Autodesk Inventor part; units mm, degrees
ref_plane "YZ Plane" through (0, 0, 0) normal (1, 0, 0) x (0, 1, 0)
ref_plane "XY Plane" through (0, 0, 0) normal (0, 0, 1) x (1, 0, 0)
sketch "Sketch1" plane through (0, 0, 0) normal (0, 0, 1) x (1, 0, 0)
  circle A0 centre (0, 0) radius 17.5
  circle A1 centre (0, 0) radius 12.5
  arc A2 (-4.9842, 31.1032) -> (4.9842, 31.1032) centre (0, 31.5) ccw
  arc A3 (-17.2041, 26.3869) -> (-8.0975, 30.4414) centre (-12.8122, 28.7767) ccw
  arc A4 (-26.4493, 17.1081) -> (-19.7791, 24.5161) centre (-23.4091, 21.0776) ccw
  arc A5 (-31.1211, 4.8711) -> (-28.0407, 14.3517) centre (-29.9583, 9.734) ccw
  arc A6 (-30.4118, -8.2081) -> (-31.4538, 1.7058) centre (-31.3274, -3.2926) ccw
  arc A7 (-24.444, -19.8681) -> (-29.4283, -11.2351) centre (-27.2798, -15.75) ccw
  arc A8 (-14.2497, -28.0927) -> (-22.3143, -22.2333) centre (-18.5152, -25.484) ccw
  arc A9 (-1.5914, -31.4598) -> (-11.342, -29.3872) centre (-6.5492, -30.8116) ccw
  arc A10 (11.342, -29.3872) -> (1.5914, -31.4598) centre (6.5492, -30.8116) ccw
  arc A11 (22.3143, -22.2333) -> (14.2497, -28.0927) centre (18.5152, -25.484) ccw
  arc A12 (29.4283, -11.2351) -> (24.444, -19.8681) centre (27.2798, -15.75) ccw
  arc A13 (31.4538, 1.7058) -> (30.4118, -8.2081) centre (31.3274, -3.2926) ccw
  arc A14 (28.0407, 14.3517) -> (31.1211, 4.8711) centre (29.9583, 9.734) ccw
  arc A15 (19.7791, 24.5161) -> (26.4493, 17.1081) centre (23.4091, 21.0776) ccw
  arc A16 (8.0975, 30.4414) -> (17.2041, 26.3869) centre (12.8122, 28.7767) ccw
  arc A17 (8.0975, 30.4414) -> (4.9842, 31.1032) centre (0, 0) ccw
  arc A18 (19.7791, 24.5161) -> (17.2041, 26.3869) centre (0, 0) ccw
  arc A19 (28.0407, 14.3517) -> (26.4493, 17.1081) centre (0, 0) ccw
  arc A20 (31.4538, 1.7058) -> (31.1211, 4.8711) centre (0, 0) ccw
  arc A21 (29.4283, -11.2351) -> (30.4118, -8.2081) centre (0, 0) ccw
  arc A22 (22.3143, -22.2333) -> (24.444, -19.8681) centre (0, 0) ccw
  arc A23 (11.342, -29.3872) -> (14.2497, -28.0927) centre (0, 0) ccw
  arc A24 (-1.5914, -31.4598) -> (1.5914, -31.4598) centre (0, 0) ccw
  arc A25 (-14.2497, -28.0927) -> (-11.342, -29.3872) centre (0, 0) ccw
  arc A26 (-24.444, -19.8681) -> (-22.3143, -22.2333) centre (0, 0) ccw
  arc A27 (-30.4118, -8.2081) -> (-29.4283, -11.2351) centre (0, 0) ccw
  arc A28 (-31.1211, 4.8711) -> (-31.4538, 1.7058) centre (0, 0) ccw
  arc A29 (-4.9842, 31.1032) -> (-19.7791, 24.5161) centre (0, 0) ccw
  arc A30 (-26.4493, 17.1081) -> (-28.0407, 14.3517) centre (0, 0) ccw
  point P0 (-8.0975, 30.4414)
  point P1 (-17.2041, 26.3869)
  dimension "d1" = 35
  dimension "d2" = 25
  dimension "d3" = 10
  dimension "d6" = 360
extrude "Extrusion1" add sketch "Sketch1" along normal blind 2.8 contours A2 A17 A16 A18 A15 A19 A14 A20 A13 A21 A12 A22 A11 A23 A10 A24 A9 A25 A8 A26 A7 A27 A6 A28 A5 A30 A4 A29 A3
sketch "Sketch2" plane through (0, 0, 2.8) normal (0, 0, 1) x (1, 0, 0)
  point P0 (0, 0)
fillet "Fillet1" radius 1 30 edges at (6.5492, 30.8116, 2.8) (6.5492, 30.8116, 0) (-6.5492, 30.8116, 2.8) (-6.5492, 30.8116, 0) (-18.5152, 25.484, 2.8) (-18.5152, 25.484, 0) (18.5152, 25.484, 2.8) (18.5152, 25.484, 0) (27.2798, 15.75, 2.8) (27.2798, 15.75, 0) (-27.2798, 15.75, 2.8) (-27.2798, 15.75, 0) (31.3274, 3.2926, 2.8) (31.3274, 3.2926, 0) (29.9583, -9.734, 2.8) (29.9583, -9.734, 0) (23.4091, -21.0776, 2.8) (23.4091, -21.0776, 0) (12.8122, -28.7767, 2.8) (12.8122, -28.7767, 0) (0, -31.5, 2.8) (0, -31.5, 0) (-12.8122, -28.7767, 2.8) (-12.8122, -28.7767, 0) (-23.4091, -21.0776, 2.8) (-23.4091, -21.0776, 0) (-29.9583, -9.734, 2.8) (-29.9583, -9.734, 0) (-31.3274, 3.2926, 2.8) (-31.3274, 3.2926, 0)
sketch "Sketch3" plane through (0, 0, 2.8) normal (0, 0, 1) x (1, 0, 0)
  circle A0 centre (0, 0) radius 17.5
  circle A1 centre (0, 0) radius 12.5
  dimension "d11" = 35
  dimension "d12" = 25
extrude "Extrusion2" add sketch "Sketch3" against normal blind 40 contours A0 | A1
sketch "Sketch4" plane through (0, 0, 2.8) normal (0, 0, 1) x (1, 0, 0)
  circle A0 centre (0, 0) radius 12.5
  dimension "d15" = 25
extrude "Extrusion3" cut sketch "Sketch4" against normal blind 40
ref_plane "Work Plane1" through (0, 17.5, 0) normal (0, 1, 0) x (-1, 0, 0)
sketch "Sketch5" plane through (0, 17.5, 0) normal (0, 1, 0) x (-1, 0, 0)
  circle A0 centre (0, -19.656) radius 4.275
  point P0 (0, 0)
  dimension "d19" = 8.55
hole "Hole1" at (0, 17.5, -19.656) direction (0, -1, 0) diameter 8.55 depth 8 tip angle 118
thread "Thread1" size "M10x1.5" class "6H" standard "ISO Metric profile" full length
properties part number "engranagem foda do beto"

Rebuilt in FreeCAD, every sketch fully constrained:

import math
import FreeCAD as App
import Part
import Sketcher
Q = App.Units.Quantity


def edges_at(feature, points):
    """Names of the edges that pass closest to the given points."""
    edges = feature.Shape.Edges
    near = lambda p: min(range(len(edges)), key=lambda i: edges[i].distToShape(Part.Vertex(*p))[0])
    return sorted({f"Edge{near(p) + 1}" for p in points})

doc = App.newDocument("Part")
body = doc.addObject("PartDesign::Body", "Body")

# Sketch on XY plane
sketch1 = body.newObject("Sketcher::SketchObject", "Sketch")
sketch1.AttachmentSupport = (doc.getObject("XY_Plane"), [""])
sketch1.MapMode = "FlatFace"
sketch1.addGeometry(Part.ArcOfCircle(Part.Circle(App.Vector(0, 31.5, 0), App.Vector(0, 0, 1), 4.99997), math.radians(-175.448193), math.radians(-4.551807)), False)
sketch1.addGeometry(Part.ArcOfCircle(Part.Circle(App.Vector(0, 0, 0), App.Vector(0, 0, 1), 31.500059), math.radians(99.104085), math.radians(104.895904)), False)
sketch1.addGeometry(Part.ArcOfCircle(Part.Circle(App.Vector(-12.8122, 28.7767, 0), App.Vector(0, 0, 1), 4.999993), math.radians(-151.447705), math.radians(19.447472)), False)
sketch1.addGeometry(Part.ArcOfCircle(Part.Circle(App.Vector(0, 0, 0), App.Vector(0, 0, 1), 31.500059), math.radians(123.104108), math.radians(128.895896)), False)
sketch1.addGeometry(Part.ArcOfCircle(Part.Circle(App.Vector(-23.4091, 21.0776, 0), App.Vector(0, 0, 1), 4.999975), math.radians(-127.448139), math.radians(43.448121)), False)
sketch1.addGeometry(Part.ArcOfCircle(Part.Circle(App.Vector(-0.002157, 0.001319, 0), App.Vector(0, 0, 1), 31.497513), math.radians(147.104037), math.radians(152.896221)), False)
sketch1.addGeometry(Part.ArcOfCircle(Part.Circle(App.Vector(-29.9583, 9.734, 0), App.Vector(0, 0, 1), 4.99999), math.radians(-103.447864), math.radians(67.448273)), False)
sketch1.addGeometry(Part.ArcOfCircle(Part.Circle(App.Vector(0.00498, -0.000651, 0), App.Vector(0, 0, 1), 31.505028), math.radians(171.104425), math.radians(176.895089)), False)
sketch1.addGeometry(Part.ArcOfCircle(Part.Circle(App.Vector(-31.3274, -3.2926, 0), App.Vector(0, 0, 1), 5.000046), math.radians(-79.448555), math.radians(91.448592)), False)
sketch1.addGeometry(Part.ArcOfCircle(Part.Circle(App.Vector(0.010898, 0.003239, 0), App.Vector(0, 0, 1), 31.511373), math.radians(-164.895322), math.radians(-159.105771)), False)
sketch1.addGeometry(Part.ArcOfCircle(Part.Circle(App.Vector(-27.2798, -15.75, 0), App.Vector(0, 0, 1), 5.000051), math.radians(-55.447981), math.radians(115.448319)), False)
sketch1.addGeometry(Part.ArcOfCircle(Part.Circle(App.Vector(-0.013787, -0.011797, 0), App.Vector(0, 0, 1), 31.481869), math.radians(-140.8966), math.radians(-135.101678)), False)
sketch1.addGeometry(Part.ArcOfCircle(Part.Circle(App.Vector(-18.5152, -25.484, 0), App.Vector(0, 0, 1), 4.999981), math.radians(-31.449176), math.radians(139.448049)), False)
sketch1.addGeometry(Part.ArcOfCircle(Part.Circle(App.Vector(-0.014025, -0.029473, 0), App.Vector(0, 0, 1), 31.467431), math.radians(-116.897381), math.radians(-111.099611)), False)
sketch1.addGeometry(Part.ArcOfCircle(Part.Circle(App.Vector(-6.5492, -30.8116, 0), App.Vector(0, 0, 1), 4.999994), math.radians(-7.448798), math.radians(163.448272)), False)
sketch1.addGeometry(Part.ArcOfCircle(Part.Circle(App.Vector(0, 0, 0), App.Vector(0, 0, 1), 31.500025), math.radians(-92.89585), math.radians(-87.10415)), False)
sketch1.addGeometry(Part.ArcOfCircle(Part.Circle(App.Vector(6.5492, -30.8116, 0), App.Vector(0, 0, 1), 4.999985), math.radians(16.551728), math.radians(187.448798)), False)
sketch1.addGeometry(Part.ArcOfCircle(Part.Circle(App.Vector(-0.012544, 0.030206, 0), App.Vector(0, 0, 1), 31.532673), math.radians(-68.894386), math.radians(-63.108622)), False)
sketch1.addGeometry(Part.ArcOfCircle(Part.Circle(App.Vector(18.5152, -25.484, 0), App.Vector(0, 0, 1), 5.000021), math.radians(40.551951), math.radians(211.449176)), False)
sketch1.addGeometry(Part.ArcOfCircle(Part.Circle(App.Vector(-0.013189, 0.012493, 0), App.Vector(0, 0, 1), 31.518123), math.radians(-44.894986), math.radians(-39.106736)), False)
sketch1.addGeometry(Part.ArcOfCircle(Part.Circle(App.Vector(27.2798, -15.75, 0), App.Vector(0, 0, 1), 5.000037), math.radians(64.551681), math.radians(235.447981)), False)
sketch1.addGeometry(Part.ArcOfCircle(Part.Circle(App.Vector(0.010713, -0.003783, 0), App.Vector(0, 0, 1), 31.488679), math.radians(-20.896317), math.radians(-15.10259)), False)
sketch1.addGeometry(Part.ArcOfCircle(Part.Circle(App.Vector(31.3274, -3.2926, 0), App.Vector(0, 0, 1), 4.999998), math.radians(88.551408), math.radians(259.448555)), False)
sketch1.addGeometry(Part.ArcOfCircle(Part.Circle(App.Vector(0.005005, 0.000398, 0), App.Vector(0, 0, 1), 31.495001), math.radians(3.103989), math.radians(8.896497)), False)
sketch1.addGeometry(Part.ArcOfCircle(Part.Circle(App.Vector(29.9583, 9.734, 0), App.Vector(0, 0, 1), 5.000034), math.radians(112.551727), math.radians(283.447864)), False)
sketch1.addGeometry(Part.ArcOfCircle(Part.Circle(App.Vector(-0.002221, -0.001209, 0), App.Vector(0, 0, 1), 31.502562), math.radians(27.104243), math.radians(32.895498)), False)
sketch1.addGeometry(Part.ArcOfCircle(Part.Circle(App.Vector(23.4091, 21.0776, 0), App.Vector(0, 0, 1), 5.000018), math.radians(136.551879), math.radians(307.448139)), False)
sketch1.addGeometry(Part.ArcOfCircle(Part.Circle(App.Vector(0.009097, 0.011877, 0), App.Vector(0, 0, 1), 31.485075), math.radians(51.103416), math.radians(56.897954)), False)
sketch1.addGeometry(Part.ArcOfCircle(Part.Circle(App.Vector(12.8122, 28.7767, 0), App.Vector(0, 0, 1), 4.999962), math.radians(160.552528), math.radians(331.447705)), False)
sketch1.addGeometry(Part.ArcOfCircle(Part.Circle(App.Vector(-0.004282, -0.017906, 0), App.Vector(0, 0, 1), 31.518378), math.radians(75.104942), math.radians(80.89338)), False)
sketch1.addGeometry(Part.Circle(App.Vector(0, 0, 0), App.Vector(0, 0, 1), 17.5), False)
sketch1.addConstraint(Sketcher.Constraint("Coincident", 0, 1, 1, 1))
sketch1.addConstraint(Sketcher.Constraint("Coincident", 1, 2, 2, 2))
sketch1.addConstraint(Sketcher.Constraint("Coincident", 2, 1, 3, 1))
sketch1.addConstraint(Sketcher.Constraint("Coincident", 3, 2, 4, 2))
sketch1.addConstraint(Sketcher.Constraint("Coincident", 4, 1, 5, 1))
sketch1.addConstraint(Sketcher.Constraint("Coincident", 5, 2, 6, 2))
sketch1.addConstraint(Sketcher.Constraint("Coincident", 6, 1, 7, 1))
sketch1.addConstraint(Sketcher.Constraint("Coincident", 7, 2, 8, 2))
sketch1.addConstraint(Sketcher.Constraint("Coincident", 8, 1, 9, 1))
sketch1.addConstraint(Sketcher.Constraint("Coincident", 9, 2, 10, 2))
sketch1.addConstraint(Sketcher.Constraint("Coincident", 10, 1, 11, 1))
sketch1.addConstraint(Sketcher.Constraint("Coincident", 11, 2, 12, 2))
sketch1.addConstraint(Sketcher.Constraint("Coincident", 12, 1, 13, 1))
sketch1.addConstraint(Sketcher.Constraint("Coincident", 13, 2, 14, 2))
sketch1.addConstraint(Sketcher.Constraint("Coincident", 14, 1, 15, 1))
sketch1.addConstraint(Sketcher.Constraint("Coincident", 15, 2, 16, 2))
sketch1.addConstraint(Sketcher.Constraint("Coincident", 16, 1, 17, 1))
sketch1.addConstraint(Sketcher.Constraint("Coincident", 17, 2, 18, 2))
sketch1.addConstraint(Sketcher.Constraint("Coincident", 18, 1, 19, 1))
sketch1.addConstraint(Sketcher.Constraint("Coincident", 19, 2, 20, 2))
sketch1.addConstraint(Sketcher.Constraint("Coincident", 20, 1, 21, 1))
sketch1.addConstraint(Sketcher.Constraint("Coincident", 21, 2, 22, 2))
sketch1.addConstraint(Sketcher.Constraint("Coincident", 22, 1, 23, 1))
sketch1.addConstraint(Sketcher.Constraint("Coincident", 23, 2, 24, 2))
sketch1.addConstraint(Sketcher.Constraint("Coincident", 24, 1, 25, 1))
sketch1.addConstraint(Sketcher.Constraint("Coincident", 25, 2, 26, 2))
sketch1.addConstraint(Sketcher.Constraint("Coincident", 26, 1, 27, 1))
sketch1.addConstraint(Sketcher.Constraint("Coincident", 27, 2, 28, 2))
sketch1.addConstraint(Sketcher.Constraint("Coincident", 28, 1, 29, 1))
sketch1.addConstraint(Sketcher.Constraint("Coincident", 29, 2, 0, 2))
sketch1.addConstraint(Sketcher.Constraint("Coincident", 1, 3, -1, 1))
sketch1.addConstraint(Sketcher.Constraint("Coincident", 3, 3, -1, 1))
sketch1.addConstraint(Sketcher.Constraint("Coincident", 15, 3, -1, 1))
sketch1.addConstraint(Sketcher.Constraint("Coincident", 30, 3, -1, 1))
sketch1.addConstraint(Sketcher.Constraint("PointOnObject", 0, 3, -2))
sketch1.addConstraint(Sketcher.Constraint("Diameter", 30, Q("35 mm")))
sketch1.addConstraint(Sketcher.Constraint("Radius", 0, Q("5 mm")))
sketch1.addConstraint(Sketcher.Constraint("Radius", 2, Q("5 mm")))
sketch1.addConstraint(Sketcher.Constraint("Radius", 4, Q("5 mm")))
sketch1.addConstraint(Sketcher.Constraint("Radius", 6, Q("5 mm")))
sketch1.addConstraint(Sketcher.Constraint("Radius", 8, Q("5 mm")))
sketch1.addConstraint(Sketcher.Constraint("Radius", 10, Q("5 mm")))
sketch1.addConstraint(Sketcher.Constraint("Radius", 12, Q("5 mm")))
sketch1.addConstraint(Sketcher.Constraint("Radius", 14, Q("5 mm")))
sketch1.addConstraint(Sketcher.Constraint("Radius", 16, Q("5 mm")))
sketch1.addConstraint(Sketcher.Constraint("Radius", 18, Q("5 mm")))
sketch1.addConstraint(Sketcher.Constraint("Radius", 20, Q("5 mm")))
sketch1.addConstraint(Sketcher.Constraint("Radius", 22, Q("5 mm")))
sketch1.addConstraint(Sketcher.Constraint("Radius", 24, Q("5 mm")))
sketch1.addConstraint(Sketcher.Constraint("Radius", 26, Q("5 mm")))
sketch1.addConstraint(Sketcher.Constraint("Radius", 28, Q("5 mm")))
sketch1.addConstraint(Sketcher.Constraint("Radius", 1, Q("31.5 mm")))
sketch1.addConstraint(Sketcher.Constraint("Radius", 3, Q("31.5 mm")))
sketch1.addConstraint(Sketcher.Constraint("Radius", 15, Q("31.5 mm")))
sketch1.addConstraint(Sketcher.Constraint("Radius", 7, Q("31.505 mm")))
sketch1.addConstraint(Sketcher.Constraint("Radius", 23, Q("31.495 mm")))
sketch1.addConstraint(Sketcher.Constraint("Radius", 27, Q("31.485 mm")))
sketch1.addConstraint(Sketcher.Constraint("DistanceY", -1, 1, 0, 3, Q("31.5 mm")))
sketch1.addConstraint(Sketcher.Constraint("Radius", 5, Q("31.4975 mm")))
sketch1.addConstraint(Sketcher.Constraint("Radius", 9, Q("31.5114 mm")))
sketch1.addConstraint(Sketcher.Constraint("Radius", 11, Q("31.4819 mm")))
sketch1.addConstraint(Sketcher.Constraint("Radius", 13, Q("31.4674 mm")))
sketch1.addConstraint(Sketcher.Constraint("Radius", 17, Q("31.5327 mm")))
sketch1.addConstraint(Sketcher.Constraint("Radius", 19, Q("31.5181 mm")))
sketch1.addConstraint(Sketcher.Constraint("Radius", 21, Q("31.4887 mm")))
sketch1.addConstraint(Sketcher.Constraint("Radius", 25, Q("31.5026 mm")))
sketch1.addConstraint(Sketcher.Constraint("Radius", 29, Q("31.5184 mm")))
sketch1.addConstraint(Sketcher.Constraint("DistanceY", 10, 3, -1, 1, Q("15.75 mm")))
sketch1.addConstraint(Sketcher.Constraint("DistanceY", 20, 3, -1, 1, Q("15.75 mm")))
sketch1.addConstraint(Sketcher.Constraint("DistanceX", 4, 3, -1, 1, Q("23.409 mm")))
sketch1.addConstraint(Sketcher.Constraint("DistanceY", -1, 1, 6, 3, Q("9.734 mm")))
sketch1.addConstraint(Sketcher.Constraint("DistanceX", -1, 1, 7, 3, Q("0.005 mm")))
sketch1.addConstraint(Sketcher.Constraint("DistanceX", -1, 1, 9, 3, Q("0.011 mm")))
sketch1.addConstraint(Sketcher.Constraint("DistanceY", 12, 3, -1, 1, Q("25.484 mm")))
sketch1.addConstraint(Sketcher.Constraint("DistanceX", 13, 3, -1, 1, Q("0.014 mm")))
sketch1.addConstraint(Sketcher.Constraint("DistanceY", 18, 3, -1, 1, Q("25.484 mm")))
sketch1.addConstraint(Sketcher.Constraint("DistanceX", -1, 1, 23, 3, Q("0.005 mm")))
sketch1.addConstraint(Sketcher.Constraint("DistanceY", -1, 1, 24, 3, Q("9.734 mm")))
sketch1.addConstraint(Sketcher.Constraint("DistanceX", -1, 1, 26, 3, Q("23.409 mm")))
sketch1.addConstraint(Sketcher.Constraint("DistanceX", -1, 1, 27, 3, Q("0.009 mm")))
sketch1.addConstraint(Sketcher.Constraint("DistanceY", 29, 3, -1, 1, Q("0.018 mm")))
sketch1.addConstraint(Sketcher.Constraint("DistanceX", 2, 1, -1, 1, Q("17.204 mm")))
sketch1.addConstraint(Sketcher.Constraint("DistanceX", 3, 2, -1, 1, Q("19.779 mm")))
sketch1.addConstraint(Sketcher.Constraint("DistanceY", -1, 1, 4, 1, Q("17.108 mm")))
sketch1.addConstraint(Sketcher.Constraint("DistanceX", 6, 1, -1, 1, Q("31.121 mm")))
sketch1.addConstraint(Sketcher.Constraint("DistanceY", -1, 1, 6, 1, Q("4.871 mm")))
sketch1.addConstraint(Sketcher.Constraint("DistanceY", 8, 1, -1, 1, Q("8.208 mm")))
sketch1.addConstraint(Sketcher.Constraint("DistanceY", 9, 2, -1, 1, Q("11.235 mm")))
sketch1.addConstraint(Sketcher.Constraint("DistanceX", 10, 1, -1, 1, Q("24.444 mm")))
sketch1.addConstraint(Sketcher.Constraint("DistanceY", 10, 1, -1, 1, Q("19.868 mm")))
sketch1.addConstraint(Sketcher.Constraint("DistanceX", 13, 2, -1, 1, Q("11.342 mm")))
sketch1.addConstraint(Sketcher.Constraint("DistanceX", -1, 1, 16, 1, Q("11.342 mm")))
sketch1.addConstraint(Sketcher.Constraint("DistanceX", -1, 1, 19, 2, Q("24.444 mm")))
sketch1.addConstraint(Sketcher.Constraint("DistanceY", 19, 2, -1, 1, Q("19.868 mm")))
sketch1.addConstraint(Sketcher.Constraint("DistanceY", 20, 1, -1, 1, Q("11.235 mm")))
sketch1.addConstraint(Sketcher.Constraint("DistanceY", 21, 2, -1, 1, Q("8.208 mm")))
sketch1.addConstraint(Sketcher.Constraint("DistanceX", -1, 1, 23, 2, Q("31.121 mm")))
sketch1.addConstraint(Sketcher.Constraint("DistanceY", -1, 1, 23, 2, Q("4.871 mm")))
sketch1.addConstraint(Sketcher.Constraint("DistanceY", -1, 1, 25, 2, Q("17.108 mm")))
sketch1.addConstraint(Sketcher.Constraint("DistanceX", -1, 1, 26, 1, Q("19.779 mm")))
sketch1.addConstraint(Sketcher.Constraint("DistanceY", -1, 1, 26, 1, Q("24.516 mm")))
sketch1.addConstraint(Sketcher.Constraint("DistanceX", -1, 1, 27, 2, Q("17.204 mm")))
sketch1.addConstraint(Sketcher.Constraint("DistanceX", 2, 3, -1, 1, Q("12.8122 mm")))
sketch1.addConstraint(Sketcher.Constraint("DistanceX", 5, 3, -1, 1, Q("0.0022 mm")))
sketch1.addConstraint(Sketcher.Constraint("DistanceX", 8, 3, -1, 1, Q("31.3274 mm")))
sketch1.addConstraint(Sketcher.Constraint("DistanceX", 11, 3, -1, 1, Q("0.0138 mm")))
sketch1.addConstraint(Sketcher.Constraint("DistanceX", 12, 3, -1, 1, Q("18.5152 mm")))
sketch1.addConstraint(Sketcher.Constraint("DistanceY", 13, 3, -1, 1, Q("0.0295 mm")))
sketch1.addConstraint(Sketcher.Constraint("DistanceX", 14, 3, -1, 1, Q("6.5492 mm")))
sketch1.addConstraint(Sketcher.Constraint("DistanceX", -1, 1, 16, 3, Q("6.5492 mm")))
sketch1.addConstraint(Sketcher.Constraint("DistanceY", 16, 3, -1, 1, Q("30.8116 mm")))
sketch1.addConstraint(Sketcher.Constraint("DistanceX", 17, 3, -1, 1, Q("0.0125 mm")))
sketch1.addConstraint(Sketcher.Constraint("DistanceX", -1, 1, 18, 3, Q("18.5152 mm")))
sketch1.addConstraint(Sketcher.Constraint("DistanceX", 19, 3, -1, 1, Q("0.0132 mm")))
sketch1.addConstraint(Sketcher.Constraint("DistanceX", -1, 1, 21, 3, Q("0.0107 mm")))
sketch1.addConstraint(Sketcher.Constraint("DistanceX", -1, 1, 22, 3, Q("31.3274 mm")))
sketch1.addConstraint(Sketcher.Constraint("DistanceX", 25, 3, -1, 1, Q("0.0022 mm")))
sketch1.addConstraint(Sketcher.Constraint("DistanceX", -1, 1, 28, 3, Q("12.8122 mm")))
sketch1.addConstraint(Sketcher.Constraint("DistanceX", 29, 3, -1, 1, Q("0.0043 mm")))
pad1 = body.newObject("PartDesign::Pad", "Pad")
pad1.Profile = sketch1
pad1.Length = 2.8
doc.recompute()

fillet = body.newObject("PartDesign::Fillet", "Fillet")
fillet.Base = (pad1, edges_at(pad1, [
    (6.549, 30.812, 2.8),
    (6.549, 30.812, 0),
    (-6.549, 30.812, 2.8),
    (-6.549, 30.812, 0),
    (-18.515, 25.484, 2.8),
    (-18.515, 25.484, 0),
    (18.515, 25.484, 2.8),
    (18.515, 25.484, 0),
    (27.28, 15.75, 2.8),
    (27.28, 15.75, 0),
    (-27.28, 15.75, 2.8),
    (-27.28, 15.75, 0),
    (31.327, 3.293, 2.8),
    (31.327, 3.293, 0),
    (29.958, -9.734, 2.8),
    (29.958, -9.734, 0),
    (23.409, -21.078, 2.8),
    (23.409, -21.078, 0),
    (12.812, -28.777, 2.8),
    (12.812, -28.777, 0),
    (0, -31.5, 2.8),
    (0, -31.5, 0),
    (-12.812, -28.777, 2.8),
    (-12.812, -28.777, 0),
    (-23.409, -21.078, 2.8),
    (-23.409, -21.078, 0),
    (-29.958, -9.734, 2.8),
    (-29.958, -9.734, 0),
    (-31.327, 3.293, 2.8),
    (-31.327, 3.293, 0),
]))
fillet.Radius = 1

# Sketch on XY plane
sketch2 = body.newObject("Sketcher::SketchObject", "Sketch001")
sketch2.AttachmentSupport = (doc.getObject("XY_Plane"), [""])
sketch2.MapMode = "FlatFace"
sketch2.AttachmentOffset = App.Placement(App.Vector(0, 0, 2.8), App.Rotation())
sketch2.addGeometry(Part.Circle(App.Vector(0, 0, 0), App.Vector(0, 0, 1), 17.5), False)
sketch2.addConstraint(Sketcher.Constraint("Coincident", 0, 3, -1, 1))
sketch2.addConstraint(Sketcher.Constraint("Diameter", 0, Q("35 mm")))
pad2 = body.newObject("PartDesign::Pad", "Pad001")
pad2.Profile = sketch2
pad2.Length = 40
pad2.Reversed = True

# Sketch on XY plane
sketch3 = body.newObject("Sketcher::SketchObject", "Sketch002")
sketch3.AttachmentSupport = (doc.getObject("XY_Plane"), [""])
sketch3.MapMode = "FlatFace"
sketch3.AttachmentOffset = App.Placement(App.Vector(0, 0, 2.8), App.Rotation())
sketch3.addGeometry(Part.Circle(App.Vector(0, 0, 0), App.Vector(0, 0, 1), 12.5), False)
sketch3.addConstraint(Sketcher.Constraint("Coincident", 0, 3, -1, 1))
sketch3.addConstraint(Sketcher.Constraint("Diameter", 0, Q("25 mm")))
pocket1 = body.newObject("PartDesign::Pocket", "Pocket")
pocket1.Profile = sketch3
pocket1.Length = 40

# Sketch on XZ plane
sketch4 = body.newObject("Sketcher::SketchObject", "Sketch003")
sketch4.AttachmentSupport = (doc.getObject("XZ_Plane"), [""])
sketch4.MapMode = "FlatFace"
sketch4.AttachmentOffset = App.Placement(App.Vector(0, 0, -17.5), App.Rotation())
sketch4.addGeometry(Part.Circle(App.Vector(0, -19.656, 0), App.Vector(0, 0, 1), 4.275), False)
sketch4.addConstraint(Sketcher.Constraint("PointOnObject", 0, 3, -2))
sketch4.addConstraint(Sketcher.Constraint("Diameter", 0, Q("8.55 mm")))
sketch4.addConstraint(Sketcher.Constraint("DistanceY", 0, 3, -1, 1, Q("19.656 mm")))
doc.recompute()
hole = body.newObject("PartDesign::Hole", "Hole")
hole.Profile = sketch4
hole.ThreadType = "None"
hole.Diameter = 8.55
hole.DepthType = "Dimension"
hole.Depth = 8
hole.DrillPoint = "Angled"
hole.DrillPointAngle = 118
hole.Reversed = True

doc.recompute()
